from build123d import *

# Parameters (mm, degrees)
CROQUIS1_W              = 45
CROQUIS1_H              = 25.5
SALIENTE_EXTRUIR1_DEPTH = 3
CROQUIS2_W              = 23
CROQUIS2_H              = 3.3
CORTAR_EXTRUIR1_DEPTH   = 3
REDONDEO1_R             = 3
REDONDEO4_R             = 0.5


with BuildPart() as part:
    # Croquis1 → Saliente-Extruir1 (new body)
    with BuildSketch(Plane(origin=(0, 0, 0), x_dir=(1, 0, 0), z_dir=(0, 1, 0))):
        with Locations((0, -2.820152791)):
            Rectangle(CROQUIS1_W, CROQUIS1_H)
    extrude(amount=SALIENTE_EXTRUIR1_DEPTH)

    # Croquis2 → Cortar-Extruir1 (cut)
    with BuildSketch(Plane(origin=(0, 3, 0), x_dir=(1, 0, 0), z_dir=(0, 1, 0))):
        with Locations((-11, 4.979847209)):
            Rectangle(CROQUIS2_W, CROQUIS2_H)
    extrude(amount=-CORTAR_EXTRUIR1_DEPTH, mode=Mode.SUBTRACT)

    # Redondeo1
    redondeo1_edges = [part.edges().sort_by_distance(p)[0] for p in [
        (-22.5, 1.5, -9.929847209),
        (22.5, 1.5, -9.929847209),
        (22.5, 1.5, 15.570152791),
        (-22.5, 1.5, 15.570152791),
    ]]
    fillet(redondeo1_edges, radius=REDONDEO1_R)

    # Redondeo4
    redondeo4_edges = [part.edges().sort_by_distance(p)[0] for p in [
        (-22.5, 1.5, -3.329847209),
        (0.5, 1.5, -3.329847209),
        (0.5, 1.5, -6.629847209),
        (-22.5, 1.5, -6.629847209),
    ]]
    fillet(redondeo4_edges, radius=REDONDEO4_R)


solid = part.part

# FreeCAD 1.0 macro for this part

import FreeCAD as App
import Part
import Sketcher
Q = App.Units.Quantity


def edges_at(feature, points):
    """Names of the edges that pass closest to the given points."""
    edges = feature.Shape.Edges
    near = lambda p: min(range(len(edges)), key=lambda i: edges[i].distToShape(Part.Vertex(*p))[0])
    return sorted({f"Edge{near(p) + 1}" for p in points})


def add_polygon(sketch, points):
    """Adds a closed chain of lines whose ends are joined by coincident constraints."""
    first, n = sketch.GeometryCount, len(points)
    for a, b in zip(points, points[1:] + points[:1]):
        sketch.addGeometry(Part.LineSegment(App.Vector(*a, 0), App.Vector(*b, 0)), False)
    for i in range(n):
        sketch.addConstraint(Sketcher.Constraint("Coincident", first + i, 2, first + (i + 1) % n, 1))

doc = App.newDocument("Part")
body = doc.addObject("PartDesign::Body", "Body")

sketch1 = body.newObject("Sketcher::SketchObject", "Sketch")
sketch1.AttachmentSupport = (doc.getObject("XZ_Plane"), [""])
sketch1.MapMode = "FlatFace"
add_polygon(sketch1, [(-22, -10), (-22, 16), (22, 16), (22, -10)])
sketch1.addConstraint([
    Sketcher.Constraint("Vertical", 0),
    Sketcher.Constraint("Horizontal", 1),
    Sketcher.Constraint("Vertical", 2),
    Sketcher.Constraint("Horizontal", 3),
    Sketcher.Constraint("DistanceX", 1, 1, 1, 2, Q("45 mm")),
    Sketcher.Constraint("DistanceY", 0, 1, 0, 2, Q("25.5 mm")),
    Sketcher.Constraint("DistanceX", 0, 2, -1, 1, Q("22.5 mm")),
    Sketcher.Constraint("DistanceY", -1, 1, 0, 2, Q("15.570153 mm")),
])
pad1 = body.newObject("PartDesign::Pad", "Pad")
pad1.Profile = sketch1
pad1.Length = 3
pad1.Reversed = True

sketch2 = body.newObject("Sketcher::SketchObject", "Sketch001")
sketch2.AttachmentSupport = (doc.getObject("XZ_Plane"), [""])
sketch2.MapMode = "FlatFace"
sketch2.AttachmentOffset = App.Placement(App.Vector(0, 0, -3), App.Rotation())
add_polygon(sketch2, [(-22.5, -6.6), (-22.5, -3.3), (0.5, -3.3), (0.5, -6.6)])
sketch2.addConstraint([
    Sketcher.Constraint("Vertical", 0),
    Sketcher.Constraint("Horizontal", 1),
    Sketcher.Constraint("Vertical", 2),
    Sketcher.Constraint("Horizontal", 3),
    Sketcher.Constraint("DistanceX", 1, 1, 1, 2, Q("23 mm")),
    Sketcher.Constraint("DistanceY", 0, 1, 0, 2, Q("3.3 mm")),
    Sketcher.Constraint("DistanceX", 0, 2, -1, 1, Q("22.5 mm")),
    Sketcher.Constraint("DistanceY", 0, 2, -1, 1, Q("3.329847 mm")),
])
pocket1 = body.newObject("PartDesign::Pocket", "Pocket")
pocket1.Profile = sketch2
pocket1.Length = 3
pocket1.Reversed = True
doc.recompute()

fillet = body.newObject("PartDesign::Fillet", "Fillet")
fillet.Base = (pocket1, edges_at(pocket1, [
    (-22.5, 1.5, -9.93),
    (22.5, 1.5, -9.93),
    (22.5, 1.5, 15.57),
    (-22.5, 1.5, 15.57),
]))
fillet.Radius = 3
doc.recompute()

fillet2 = body.newObject("PartDesign::Fillet", "Fillet001")
fillet2.Base = (fillet, edges_at(fillet, [
    (-22.5, 1.5, -3.33),
    (0.5, 1.5, -3.33),
    (0.5, 1.5, -6.63),
    (-22.5, 1.5, -6.63),
]))
fillet2.Radius = 0.5

doc.recompute()
